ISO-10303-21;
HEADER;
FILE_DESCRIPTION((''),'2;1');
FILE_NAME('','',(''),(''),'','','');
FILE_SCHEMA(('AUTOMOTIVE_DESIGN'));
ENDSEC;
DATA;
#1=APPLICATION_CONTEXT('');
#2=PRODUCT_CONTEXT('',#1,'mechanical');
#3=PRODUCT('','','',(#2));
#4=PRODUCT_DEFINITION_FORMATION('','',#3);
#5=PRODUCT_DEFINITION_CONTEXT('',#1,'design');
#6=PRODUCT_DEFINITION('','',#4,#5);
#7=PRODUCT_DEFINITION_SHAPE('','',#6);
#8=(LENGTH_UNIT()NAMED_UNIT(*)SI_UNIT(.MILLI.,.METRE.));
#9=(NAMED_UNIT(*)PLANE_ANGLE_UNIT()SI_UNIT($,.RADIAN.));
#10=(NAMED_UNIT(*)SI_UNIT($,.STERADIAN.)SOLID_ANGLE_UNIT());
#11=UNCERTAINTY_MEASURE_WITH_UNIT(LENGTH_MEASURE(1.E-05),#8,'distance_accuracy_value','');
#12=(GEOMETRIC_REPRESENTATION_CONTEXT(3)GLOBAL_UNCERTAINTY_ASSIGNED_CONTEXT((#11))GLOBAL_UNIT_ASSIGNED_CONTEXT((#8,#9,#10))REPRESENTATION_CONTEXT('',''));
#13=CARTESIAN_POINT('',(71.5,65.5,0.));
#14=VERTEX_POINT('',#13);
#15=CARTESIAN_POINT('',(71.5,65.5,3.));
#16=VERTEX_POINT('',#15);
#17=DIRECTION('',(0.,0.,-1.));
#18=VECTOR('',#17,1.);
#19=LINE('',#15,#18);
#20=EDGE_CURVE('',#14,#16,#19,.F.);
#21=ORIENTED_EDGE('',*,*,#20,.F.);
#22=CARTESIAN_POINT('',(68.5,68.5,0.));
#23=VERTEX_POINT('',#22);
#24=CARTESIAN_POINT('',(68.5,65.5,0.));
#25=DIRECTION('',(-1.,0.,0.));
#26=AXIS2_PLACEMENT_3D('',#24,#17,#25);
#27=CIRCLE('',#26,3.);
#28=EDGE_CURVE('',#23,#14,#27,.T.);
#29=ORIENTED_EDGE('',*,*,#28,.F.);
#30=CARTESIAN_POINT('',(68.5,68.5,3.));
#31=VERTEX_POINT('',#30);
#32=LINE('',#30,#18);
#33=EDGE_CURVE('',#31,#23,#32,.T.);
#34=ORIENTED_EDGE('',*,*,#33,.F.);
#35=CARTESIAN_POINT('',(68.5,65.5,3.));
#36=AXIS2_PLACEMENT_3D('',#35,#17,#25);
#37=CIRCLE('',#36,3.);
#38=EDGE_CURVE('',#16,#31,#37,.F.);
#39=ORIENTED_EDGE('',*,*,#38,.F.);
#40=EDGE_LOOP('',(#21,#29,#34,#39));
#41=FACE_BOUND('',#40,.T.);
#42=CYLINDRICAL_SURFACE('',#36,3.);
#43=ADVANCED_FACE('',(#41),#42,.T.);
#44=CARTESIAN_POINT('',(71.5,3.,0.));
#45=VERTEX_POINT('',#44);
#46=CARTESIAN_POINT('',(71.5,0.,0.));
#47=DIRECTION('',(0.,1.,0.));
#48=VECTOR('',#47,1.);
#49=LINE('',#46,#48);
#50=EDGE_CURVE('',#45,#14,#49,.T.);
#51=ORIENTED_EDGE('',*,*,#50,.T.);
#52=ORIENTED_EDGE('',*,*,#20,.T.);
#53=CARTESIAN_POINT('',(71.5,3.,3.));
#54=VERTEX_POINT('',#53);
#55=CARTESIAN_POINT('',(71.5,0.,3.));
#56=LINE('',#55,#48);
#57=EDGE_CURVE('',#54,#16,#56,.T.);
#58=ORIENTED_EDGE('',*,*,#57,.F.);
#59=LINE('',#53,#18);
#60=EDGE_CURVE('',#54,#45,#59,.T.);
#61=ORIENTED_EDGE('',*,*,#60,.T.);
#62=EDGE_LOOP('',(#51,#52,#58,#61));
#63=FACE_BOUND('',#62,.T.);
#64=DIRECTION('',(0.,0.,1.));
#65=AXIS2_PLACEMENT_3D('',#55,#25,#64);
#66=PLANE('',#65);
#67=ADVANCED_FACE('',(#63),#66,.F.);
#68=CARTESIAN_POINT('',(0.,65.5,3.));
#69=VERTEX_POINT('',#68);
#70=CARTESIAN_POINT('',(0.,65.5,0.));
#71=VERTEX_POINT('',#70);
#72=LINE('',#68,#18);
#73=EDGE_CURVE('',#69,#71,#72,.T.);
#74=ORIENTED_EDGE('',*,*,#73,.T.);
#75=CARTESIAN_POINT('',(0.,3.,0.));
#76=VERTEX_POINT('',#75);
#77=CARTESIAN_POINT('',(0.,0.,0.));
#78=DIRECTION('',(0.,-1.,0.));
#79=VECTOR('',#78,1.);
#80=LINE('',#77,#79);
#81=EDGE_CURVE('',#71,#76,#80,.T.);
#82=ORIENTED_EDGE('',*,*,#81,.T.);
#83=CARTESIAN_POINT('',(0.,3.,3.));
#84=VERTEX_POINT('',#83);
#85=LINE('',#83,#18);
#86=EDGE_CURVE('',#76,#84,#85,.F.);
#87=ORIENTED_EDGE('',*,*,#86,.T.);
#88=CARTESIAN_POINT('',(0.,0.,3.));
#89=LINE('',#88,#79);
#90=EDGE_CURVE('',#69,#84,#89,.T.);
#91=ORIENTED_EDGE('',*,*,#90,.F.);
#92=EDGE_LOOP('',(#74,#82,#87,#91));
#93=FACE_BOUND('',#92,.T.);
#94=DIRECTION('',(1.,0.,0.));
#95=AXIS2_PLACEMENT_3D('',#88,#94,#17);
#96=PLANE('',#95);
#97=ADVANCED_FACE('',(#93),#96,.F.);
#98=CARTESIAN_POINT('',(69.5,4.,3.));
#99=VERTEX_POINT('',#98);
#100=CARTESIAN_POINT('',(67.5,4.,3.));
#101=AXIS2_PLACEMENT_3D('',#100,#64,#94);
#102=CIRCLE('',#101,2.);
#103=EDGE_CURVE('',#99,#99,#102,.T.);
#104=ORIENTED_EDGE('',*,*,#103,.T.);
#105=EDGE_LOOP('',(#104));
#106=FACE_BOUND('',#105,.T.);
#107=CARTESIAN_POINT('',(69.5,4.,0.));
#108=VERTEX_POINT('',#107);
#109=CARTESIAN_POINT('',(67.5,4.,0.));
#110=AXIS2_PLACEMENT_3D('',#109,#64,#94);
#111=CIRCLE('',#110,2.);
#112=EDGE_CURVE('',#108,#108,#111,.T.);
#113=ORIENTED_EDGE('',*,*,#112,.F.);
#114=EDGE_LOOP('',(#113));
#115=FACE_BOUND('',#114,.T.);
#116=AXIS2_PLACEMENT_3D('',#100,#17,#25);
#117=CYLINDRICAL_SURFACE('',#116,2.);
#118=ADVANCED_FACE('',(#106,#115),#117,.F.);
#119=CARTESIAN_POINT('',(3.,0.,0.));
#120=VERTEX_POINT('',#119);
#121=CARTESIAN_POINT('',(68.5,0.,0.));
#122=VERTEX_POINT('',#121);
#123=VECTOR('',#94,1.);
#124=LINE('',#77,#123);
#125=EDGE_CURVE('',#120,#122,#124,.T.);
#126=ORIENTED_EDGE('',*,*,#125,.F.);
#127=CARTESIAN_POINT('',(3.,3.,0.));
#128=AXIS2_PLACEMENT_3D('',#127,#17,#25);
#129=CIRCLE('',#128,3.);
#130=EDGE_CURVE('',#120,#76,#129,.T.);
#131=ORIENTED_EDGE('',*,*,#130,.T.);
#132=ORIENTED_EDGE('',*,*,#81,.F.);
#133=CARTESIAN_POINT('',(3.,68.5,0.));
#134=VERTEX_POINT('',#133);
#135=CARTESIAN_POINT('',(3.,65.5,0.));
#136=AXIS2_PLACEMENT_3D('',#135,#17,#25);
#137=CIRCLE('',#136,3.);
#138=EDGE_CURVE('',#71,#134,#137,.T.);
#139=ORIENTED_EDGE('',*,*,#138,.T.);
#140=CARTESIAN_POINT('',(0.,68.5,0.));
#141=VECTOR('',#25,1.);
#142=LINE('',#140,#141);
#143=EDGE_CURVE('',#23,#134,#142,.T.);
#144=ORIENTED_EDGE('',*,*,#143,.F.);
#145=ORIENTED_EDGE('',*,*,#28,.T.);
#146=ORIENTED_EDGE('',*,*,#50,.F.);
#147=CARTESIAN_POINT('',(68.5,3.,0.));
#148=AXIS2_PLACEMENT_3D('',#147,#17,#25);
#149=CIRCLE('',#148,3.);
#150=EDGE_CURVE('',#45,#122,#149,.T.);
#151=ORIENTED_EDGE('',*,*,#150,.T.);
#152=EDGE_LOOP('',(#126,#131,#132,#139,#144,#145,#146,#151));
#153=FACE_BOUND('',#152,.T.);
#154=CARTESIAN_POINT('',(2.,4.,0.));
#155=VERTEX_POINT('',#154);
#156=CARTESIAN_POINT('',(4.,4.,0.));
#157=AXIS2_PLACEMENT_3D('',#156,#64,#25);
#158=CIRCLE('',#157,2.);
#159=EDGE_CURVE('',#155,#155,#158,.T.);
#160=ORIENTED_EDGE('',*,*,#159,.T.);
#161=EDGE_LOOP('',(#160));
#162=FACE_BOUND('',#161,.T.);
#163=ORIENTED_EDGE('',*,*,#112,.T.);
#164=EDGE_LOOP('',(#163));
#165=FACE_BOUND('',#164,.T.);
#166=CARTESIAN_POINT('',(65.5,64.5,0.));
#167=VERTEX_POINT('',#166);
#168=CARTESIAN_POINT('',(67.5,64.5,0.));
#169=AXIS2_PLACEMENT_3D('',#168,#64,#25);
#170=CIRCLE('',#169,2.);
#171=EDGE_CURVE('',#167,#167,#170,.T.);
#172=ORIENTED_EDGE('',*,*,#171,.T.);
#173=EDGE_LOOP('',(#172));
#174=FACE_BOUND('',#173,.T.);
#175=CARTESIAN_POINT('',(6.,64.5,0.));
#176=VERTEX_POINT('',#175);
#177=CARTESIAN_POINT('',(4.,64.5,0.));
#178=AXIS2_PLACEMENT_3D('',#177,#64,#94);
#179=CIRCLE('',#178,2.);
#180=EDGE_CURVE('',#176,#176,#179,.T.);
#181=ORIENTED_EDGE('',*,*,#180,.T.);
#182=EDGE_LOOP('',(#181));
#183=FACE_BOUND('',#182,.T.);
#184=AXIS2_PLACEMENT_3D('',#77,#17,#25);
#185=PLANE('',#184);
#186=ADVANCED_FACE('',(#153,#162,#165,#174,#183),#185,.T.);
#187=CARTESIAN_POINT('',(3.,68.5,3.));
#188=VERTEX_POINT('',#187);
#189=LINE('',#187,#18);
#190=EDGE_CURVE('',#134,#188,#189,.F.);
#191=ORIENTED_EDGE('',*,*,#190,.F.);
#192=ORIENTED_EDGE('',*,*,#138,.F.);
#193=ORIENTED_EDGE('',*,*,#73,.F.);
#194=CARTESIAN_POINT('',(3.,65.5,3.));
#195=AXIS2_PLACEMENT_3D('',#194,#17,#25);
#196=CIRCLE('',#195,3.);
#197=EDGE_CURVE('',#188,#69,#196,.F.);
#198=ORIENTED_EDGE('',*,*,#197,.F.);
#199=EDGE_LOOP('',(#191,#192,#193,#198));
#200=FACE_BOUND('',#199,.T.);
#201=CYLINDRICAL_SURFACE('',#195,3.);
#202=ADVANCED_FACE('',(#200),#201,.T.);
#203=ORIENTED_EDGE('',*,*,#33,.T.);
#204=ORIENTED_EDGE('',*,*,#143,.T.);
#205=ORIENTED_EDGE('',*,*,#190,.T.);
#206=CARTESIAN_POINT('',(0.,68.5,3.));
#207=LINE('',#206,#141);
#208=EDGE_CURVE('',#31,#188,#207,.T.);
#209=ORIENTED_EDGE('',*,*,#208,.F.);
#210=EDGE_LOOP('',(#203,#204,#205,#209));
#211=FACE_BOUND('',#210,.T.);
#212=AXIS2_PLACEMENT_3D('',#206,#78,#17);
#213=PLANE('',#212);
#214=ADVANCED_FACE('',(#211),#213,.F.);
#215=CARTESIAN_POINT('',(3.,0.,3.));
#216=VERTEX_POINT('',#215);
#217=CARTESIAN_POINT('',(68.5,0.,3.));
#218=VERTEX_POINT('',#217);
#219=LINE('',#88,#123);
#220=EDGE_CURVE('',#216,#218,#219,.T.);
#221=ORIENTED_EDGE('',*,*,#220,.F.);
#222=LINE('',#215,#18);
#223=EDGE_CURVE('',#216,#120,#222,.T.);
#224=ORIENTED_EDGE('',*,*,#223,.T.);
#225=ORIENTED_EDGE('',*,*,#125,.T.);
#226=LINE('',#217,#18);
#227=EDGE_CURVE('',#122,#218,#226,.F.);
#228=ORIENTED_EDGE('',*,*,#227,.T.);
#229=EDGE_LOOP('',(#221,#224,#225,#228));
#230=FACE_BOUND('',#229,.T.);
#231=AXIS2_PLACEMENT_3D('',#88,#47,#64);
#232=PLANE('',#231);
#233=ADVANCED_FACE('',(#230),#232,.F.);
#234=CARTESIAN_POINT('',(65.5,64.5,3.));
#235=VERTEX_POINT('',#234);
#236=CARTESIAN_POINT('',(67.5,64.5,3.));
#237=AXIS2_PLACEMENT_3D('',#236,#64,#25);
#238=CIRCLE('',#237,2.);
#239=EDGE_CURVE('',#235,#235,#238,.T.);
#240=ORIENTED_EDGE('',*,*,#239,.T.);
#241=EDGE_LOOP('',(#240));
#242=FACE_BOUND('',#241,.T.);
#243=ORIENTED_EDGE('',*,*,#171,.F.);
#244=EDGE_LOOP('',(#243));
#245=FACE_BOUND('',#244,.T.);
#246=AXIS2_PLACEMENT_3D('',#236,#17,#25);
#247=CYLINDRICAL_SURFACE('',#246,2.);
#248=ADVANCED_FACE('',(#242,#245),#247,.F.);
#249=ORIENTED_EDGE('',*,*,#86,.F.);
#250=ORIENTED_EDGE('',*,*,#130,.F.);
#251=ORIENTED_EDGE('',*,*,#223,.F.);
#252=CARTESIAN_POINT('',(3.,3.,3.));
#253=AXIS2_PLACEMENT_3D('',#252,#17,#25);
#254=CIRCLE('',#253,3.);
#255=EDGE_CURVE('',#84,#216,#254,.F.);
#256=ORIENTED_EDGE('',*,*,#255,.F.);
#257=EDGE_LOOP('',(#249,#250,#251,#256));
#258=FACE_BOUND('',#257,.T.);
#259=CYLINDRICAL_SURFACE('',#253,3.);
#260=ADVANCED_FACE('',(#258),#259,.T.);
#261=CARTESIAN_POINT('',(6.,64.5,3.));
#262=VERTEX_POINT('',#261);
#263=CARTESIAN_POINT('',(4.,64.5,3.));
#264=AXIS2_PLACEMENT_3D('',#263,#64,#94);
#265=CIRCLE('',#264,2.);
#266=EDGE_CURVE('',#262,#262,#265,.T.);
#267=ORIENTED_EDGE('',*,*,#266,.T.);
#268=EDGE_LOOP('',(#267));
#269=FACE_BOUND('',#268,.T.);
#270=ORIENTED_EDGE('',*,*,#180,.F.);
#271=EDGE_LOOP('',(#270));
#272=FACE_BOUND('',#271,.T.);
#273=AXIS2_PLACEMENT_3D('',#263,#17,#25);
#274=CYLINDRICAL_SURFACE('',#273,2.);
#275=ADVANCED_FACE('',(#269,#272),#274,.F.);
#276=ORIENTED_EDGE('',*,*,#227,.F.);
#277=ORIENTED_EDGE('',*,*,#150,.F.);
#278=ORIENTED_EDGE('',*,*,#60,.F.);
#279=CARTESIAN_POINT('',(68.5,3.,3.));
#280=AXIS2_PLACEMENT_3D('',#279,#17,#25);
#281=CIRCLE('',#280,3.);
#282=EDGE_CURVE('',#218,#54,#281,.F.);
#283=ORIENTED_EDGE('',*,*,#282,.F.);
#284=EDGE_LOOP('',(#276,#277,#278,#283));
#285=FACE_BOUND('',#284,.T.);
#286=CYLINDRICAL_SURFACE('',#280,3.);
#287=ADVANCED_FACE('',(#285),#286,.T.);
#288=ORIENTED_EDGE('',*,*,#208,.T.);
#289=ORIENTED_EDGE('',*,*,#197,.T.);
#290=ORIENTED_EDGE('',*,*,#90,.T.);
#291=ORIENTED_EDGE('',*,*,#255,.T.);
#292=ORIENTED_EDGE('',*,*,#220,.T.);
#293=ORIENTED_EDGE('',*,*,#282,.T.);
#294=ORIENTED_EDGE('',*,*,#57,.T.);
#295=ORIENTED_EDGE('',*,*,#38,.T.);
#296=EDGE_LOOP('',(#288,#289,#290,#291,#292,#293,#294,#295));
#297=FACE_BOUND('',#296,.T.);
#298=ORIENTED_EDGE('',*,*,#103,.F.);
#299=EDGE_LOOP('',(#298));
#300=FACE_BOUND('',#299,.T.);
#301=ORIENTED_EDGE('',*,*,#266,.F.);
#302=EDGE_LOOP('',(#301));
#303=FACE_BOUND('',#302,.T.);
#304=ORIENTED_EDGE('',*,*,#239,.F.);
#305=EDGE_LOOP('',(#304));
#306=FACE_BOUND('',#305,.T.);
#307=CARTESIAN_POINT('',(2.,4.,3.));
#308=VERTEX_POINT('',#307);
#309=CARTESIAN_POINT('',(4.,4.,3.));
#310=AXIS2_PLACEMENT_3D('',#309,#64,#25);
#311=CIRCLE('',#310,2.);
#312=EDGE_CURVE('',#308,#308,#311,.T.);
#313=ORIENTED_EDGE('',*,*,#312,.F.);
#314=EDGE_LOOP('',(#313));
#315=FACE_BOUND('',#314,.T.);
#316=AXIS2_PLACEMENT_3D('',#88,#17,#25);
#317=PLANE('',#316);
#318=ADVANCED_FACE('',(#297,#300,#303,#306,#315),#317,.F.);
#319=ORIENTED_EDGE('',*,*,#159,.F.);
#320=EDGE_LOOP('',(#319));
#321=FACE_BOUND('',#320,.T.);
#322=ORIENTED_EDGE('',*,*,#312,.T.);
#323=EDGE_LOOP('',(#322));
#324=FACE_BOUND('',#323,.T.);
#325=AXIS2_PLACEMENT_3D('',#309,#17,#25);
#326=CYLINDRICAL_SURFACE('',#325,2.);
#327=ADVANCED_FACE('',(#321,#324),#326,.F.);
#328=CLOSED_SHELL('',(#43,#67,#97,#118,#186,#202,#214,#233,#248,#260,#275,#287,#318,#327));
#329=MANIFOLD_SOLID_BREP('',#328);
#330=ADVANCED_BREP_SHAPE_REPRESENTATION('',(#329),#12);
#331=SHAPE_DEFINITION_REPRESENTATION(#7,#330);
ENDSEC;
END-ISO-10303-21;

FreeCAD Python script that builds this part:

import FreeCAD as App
import Part
import Sketcher

V = App.Vector


def edges_at(feature, points):
    """Names of the edges that pass closest to the given points."""
    edges = feature.Shape.Edges
    near = lambda p: min(range(len(edges)), key=lambda i: edges[i].distToShape(Part.Vertex(*p))[0])
    return sorted({f"Edge{near(p) + 1}" for p in points})


def add_polygon(sketch, points):
    """Adds a closed chain of lines whose ends are joined by coincident constraints."""
    first, n = sketch.GeometryCount, len(points)
    for a, b in zip(points, points[1:] + points[:1]):
        sketch.addGeometry(Part.LineSegment(App.Vector(*a, 0), App.Vector(*b, 0)), False)
    for i in range(n):
        sketch.addConstraint(Sketcher.Constraint("Coincident", first + i, 2, first + (i + 1) % n, 1))

doc = App.newDocument("Part")
params = doc.addObject("Spreadsheet::Sheet", "Params")
for row, (alias, value) in enumerate([
    ("sketch1_diameter", "4 mm"),
    ("sketch1_width", "71.5 mm"),
    ("sketch1_height", "68.5 mm"),
    ("pad1_length", "3 mm"),
    ("fillet_radius", "3 mm"),
], start=1):
    params.set(f"A{row}", alias)
    params.set(f"B{row}", "=" + value)
    params.setAlias(f"B{row}", alias)

body = doc.addObject("PartDesign::Body", "Body")

# Sketch on XY plane
sketch1 = body.newObject("Sketcher::SketchObject", "Sketch")
sketch1.AttachmentSupport = (doc.getObject("XY_Plane"), [""])
sketch1.MapMode = "FlatFace"
add_polygon(sketch1, [(0, 68.5), (0, 0), (71.5, 0), (71.5, 68.5)])  # lines 0-3
sketch1.addGeometry(Part.Circle(V(4, 4, 0), V(0, 0, 1), 2), False)  # 4
sketch1.addGeometry(Part.Circle(V(67.5, 4, 0), V(0, 0, 1), 2), False)  # 5
sketch1.addGeometry(Part.Circle(V(4, 64.5, 0), V(0, 0, 1), 2), False)  # 6
sketch1.addGeometry(Part.Circle(V(67.5, 64.5, 0), V(0, 0, 1), 2), False)  # 7
sketch1.addConstraint(Sketcher.Constraint("Vertical", 0))
sketch1.addConstraint(Sketcher.Constraint("Horizontal", 1))
sketch1.addConstraint(Sketcher.Constraint("Vertical", 2))
sketch1.addConstraint(Sketcher.Constraint("Horizontal", 3))
sketch1.addConstraint(Sketcher.Constraint("Coincident", 0, 2, -1, 1))
sketch1.addConstraint(Sketcher.Constraint("Equal", 4, 5))
sketch1.addConstraint(Sketcher.Constraint("Equal", 5, 6))
sketch1.addConstraint(Sketcher.Constraint("Equal", 6, 7))
sketch1.addConstraint(Sketcher.Constraint("Horizontal", 4, 3, 5, 3))
sketch1.addConstraint(Sketcher.Constraint("Horizontal", 6, 3, 7, 3))
sketch1.addConstraint(Sketcher.Constraint("Vertical", 4, 3, 6, 3))
sketch1.addConstraint(Sketcher.Constraint("Vertical", 5, 3, 7, 3))
sketch1.addConstraint(Sketcher.Constraint("Diameter", 4, 4.0))
sketch1.addConstraint(Sketcher.Constraint("DistanceX", 1, 1, 1, 2, 71.5))
sketch1.addConstraint(Sketcher.Constraint("DistanceY", 0, 2, 0, 1, 68.5))
sketch1.addConstraint(Sketcher.Constraint("DistanceX", -1, 1, 4, 3, 4.0))
sketch1.addConstraint(Sketcher.Constraint("DistanceY", -1, 1, 4, 3, 4.0))
sketch1.addConstraint(Sketcher.Constraint("DistanceX", 5, 3, 1, 2, 4.0))
sketch1.addConstraint(Sketcher.Constraint("DistanceY", 7, 3, 2, 2, 4.0))
sketch1.setExpression("Constraints[16]", "Params.sketch1_diameter")
sketch1.setExpression("Constraints[17]", "Params.sketch1_width")
sketch1.setExpression("Constraints[18]", "Params.sketch1_height")
pad1 = body.newObject("PartDesign::Pad", "Pad")
pad1.Profile = sketch1
pad1.setExpression("Length", "Params.pad1_length")
doc.recompute()

fillet = body.newObject("PartDesign::Fillet", "Fillet")
fillet.Base = (pad1, edges_at(pad1, [
    (0, 68.5, 1.5),
    (71.5, 68.5, 1.5),
    (71.5, 0, 1.5),
    (0, 0, 1.5),
]))
fillet.setExpression("Radius", "Params.fillet_radius")

doc.recompute()
